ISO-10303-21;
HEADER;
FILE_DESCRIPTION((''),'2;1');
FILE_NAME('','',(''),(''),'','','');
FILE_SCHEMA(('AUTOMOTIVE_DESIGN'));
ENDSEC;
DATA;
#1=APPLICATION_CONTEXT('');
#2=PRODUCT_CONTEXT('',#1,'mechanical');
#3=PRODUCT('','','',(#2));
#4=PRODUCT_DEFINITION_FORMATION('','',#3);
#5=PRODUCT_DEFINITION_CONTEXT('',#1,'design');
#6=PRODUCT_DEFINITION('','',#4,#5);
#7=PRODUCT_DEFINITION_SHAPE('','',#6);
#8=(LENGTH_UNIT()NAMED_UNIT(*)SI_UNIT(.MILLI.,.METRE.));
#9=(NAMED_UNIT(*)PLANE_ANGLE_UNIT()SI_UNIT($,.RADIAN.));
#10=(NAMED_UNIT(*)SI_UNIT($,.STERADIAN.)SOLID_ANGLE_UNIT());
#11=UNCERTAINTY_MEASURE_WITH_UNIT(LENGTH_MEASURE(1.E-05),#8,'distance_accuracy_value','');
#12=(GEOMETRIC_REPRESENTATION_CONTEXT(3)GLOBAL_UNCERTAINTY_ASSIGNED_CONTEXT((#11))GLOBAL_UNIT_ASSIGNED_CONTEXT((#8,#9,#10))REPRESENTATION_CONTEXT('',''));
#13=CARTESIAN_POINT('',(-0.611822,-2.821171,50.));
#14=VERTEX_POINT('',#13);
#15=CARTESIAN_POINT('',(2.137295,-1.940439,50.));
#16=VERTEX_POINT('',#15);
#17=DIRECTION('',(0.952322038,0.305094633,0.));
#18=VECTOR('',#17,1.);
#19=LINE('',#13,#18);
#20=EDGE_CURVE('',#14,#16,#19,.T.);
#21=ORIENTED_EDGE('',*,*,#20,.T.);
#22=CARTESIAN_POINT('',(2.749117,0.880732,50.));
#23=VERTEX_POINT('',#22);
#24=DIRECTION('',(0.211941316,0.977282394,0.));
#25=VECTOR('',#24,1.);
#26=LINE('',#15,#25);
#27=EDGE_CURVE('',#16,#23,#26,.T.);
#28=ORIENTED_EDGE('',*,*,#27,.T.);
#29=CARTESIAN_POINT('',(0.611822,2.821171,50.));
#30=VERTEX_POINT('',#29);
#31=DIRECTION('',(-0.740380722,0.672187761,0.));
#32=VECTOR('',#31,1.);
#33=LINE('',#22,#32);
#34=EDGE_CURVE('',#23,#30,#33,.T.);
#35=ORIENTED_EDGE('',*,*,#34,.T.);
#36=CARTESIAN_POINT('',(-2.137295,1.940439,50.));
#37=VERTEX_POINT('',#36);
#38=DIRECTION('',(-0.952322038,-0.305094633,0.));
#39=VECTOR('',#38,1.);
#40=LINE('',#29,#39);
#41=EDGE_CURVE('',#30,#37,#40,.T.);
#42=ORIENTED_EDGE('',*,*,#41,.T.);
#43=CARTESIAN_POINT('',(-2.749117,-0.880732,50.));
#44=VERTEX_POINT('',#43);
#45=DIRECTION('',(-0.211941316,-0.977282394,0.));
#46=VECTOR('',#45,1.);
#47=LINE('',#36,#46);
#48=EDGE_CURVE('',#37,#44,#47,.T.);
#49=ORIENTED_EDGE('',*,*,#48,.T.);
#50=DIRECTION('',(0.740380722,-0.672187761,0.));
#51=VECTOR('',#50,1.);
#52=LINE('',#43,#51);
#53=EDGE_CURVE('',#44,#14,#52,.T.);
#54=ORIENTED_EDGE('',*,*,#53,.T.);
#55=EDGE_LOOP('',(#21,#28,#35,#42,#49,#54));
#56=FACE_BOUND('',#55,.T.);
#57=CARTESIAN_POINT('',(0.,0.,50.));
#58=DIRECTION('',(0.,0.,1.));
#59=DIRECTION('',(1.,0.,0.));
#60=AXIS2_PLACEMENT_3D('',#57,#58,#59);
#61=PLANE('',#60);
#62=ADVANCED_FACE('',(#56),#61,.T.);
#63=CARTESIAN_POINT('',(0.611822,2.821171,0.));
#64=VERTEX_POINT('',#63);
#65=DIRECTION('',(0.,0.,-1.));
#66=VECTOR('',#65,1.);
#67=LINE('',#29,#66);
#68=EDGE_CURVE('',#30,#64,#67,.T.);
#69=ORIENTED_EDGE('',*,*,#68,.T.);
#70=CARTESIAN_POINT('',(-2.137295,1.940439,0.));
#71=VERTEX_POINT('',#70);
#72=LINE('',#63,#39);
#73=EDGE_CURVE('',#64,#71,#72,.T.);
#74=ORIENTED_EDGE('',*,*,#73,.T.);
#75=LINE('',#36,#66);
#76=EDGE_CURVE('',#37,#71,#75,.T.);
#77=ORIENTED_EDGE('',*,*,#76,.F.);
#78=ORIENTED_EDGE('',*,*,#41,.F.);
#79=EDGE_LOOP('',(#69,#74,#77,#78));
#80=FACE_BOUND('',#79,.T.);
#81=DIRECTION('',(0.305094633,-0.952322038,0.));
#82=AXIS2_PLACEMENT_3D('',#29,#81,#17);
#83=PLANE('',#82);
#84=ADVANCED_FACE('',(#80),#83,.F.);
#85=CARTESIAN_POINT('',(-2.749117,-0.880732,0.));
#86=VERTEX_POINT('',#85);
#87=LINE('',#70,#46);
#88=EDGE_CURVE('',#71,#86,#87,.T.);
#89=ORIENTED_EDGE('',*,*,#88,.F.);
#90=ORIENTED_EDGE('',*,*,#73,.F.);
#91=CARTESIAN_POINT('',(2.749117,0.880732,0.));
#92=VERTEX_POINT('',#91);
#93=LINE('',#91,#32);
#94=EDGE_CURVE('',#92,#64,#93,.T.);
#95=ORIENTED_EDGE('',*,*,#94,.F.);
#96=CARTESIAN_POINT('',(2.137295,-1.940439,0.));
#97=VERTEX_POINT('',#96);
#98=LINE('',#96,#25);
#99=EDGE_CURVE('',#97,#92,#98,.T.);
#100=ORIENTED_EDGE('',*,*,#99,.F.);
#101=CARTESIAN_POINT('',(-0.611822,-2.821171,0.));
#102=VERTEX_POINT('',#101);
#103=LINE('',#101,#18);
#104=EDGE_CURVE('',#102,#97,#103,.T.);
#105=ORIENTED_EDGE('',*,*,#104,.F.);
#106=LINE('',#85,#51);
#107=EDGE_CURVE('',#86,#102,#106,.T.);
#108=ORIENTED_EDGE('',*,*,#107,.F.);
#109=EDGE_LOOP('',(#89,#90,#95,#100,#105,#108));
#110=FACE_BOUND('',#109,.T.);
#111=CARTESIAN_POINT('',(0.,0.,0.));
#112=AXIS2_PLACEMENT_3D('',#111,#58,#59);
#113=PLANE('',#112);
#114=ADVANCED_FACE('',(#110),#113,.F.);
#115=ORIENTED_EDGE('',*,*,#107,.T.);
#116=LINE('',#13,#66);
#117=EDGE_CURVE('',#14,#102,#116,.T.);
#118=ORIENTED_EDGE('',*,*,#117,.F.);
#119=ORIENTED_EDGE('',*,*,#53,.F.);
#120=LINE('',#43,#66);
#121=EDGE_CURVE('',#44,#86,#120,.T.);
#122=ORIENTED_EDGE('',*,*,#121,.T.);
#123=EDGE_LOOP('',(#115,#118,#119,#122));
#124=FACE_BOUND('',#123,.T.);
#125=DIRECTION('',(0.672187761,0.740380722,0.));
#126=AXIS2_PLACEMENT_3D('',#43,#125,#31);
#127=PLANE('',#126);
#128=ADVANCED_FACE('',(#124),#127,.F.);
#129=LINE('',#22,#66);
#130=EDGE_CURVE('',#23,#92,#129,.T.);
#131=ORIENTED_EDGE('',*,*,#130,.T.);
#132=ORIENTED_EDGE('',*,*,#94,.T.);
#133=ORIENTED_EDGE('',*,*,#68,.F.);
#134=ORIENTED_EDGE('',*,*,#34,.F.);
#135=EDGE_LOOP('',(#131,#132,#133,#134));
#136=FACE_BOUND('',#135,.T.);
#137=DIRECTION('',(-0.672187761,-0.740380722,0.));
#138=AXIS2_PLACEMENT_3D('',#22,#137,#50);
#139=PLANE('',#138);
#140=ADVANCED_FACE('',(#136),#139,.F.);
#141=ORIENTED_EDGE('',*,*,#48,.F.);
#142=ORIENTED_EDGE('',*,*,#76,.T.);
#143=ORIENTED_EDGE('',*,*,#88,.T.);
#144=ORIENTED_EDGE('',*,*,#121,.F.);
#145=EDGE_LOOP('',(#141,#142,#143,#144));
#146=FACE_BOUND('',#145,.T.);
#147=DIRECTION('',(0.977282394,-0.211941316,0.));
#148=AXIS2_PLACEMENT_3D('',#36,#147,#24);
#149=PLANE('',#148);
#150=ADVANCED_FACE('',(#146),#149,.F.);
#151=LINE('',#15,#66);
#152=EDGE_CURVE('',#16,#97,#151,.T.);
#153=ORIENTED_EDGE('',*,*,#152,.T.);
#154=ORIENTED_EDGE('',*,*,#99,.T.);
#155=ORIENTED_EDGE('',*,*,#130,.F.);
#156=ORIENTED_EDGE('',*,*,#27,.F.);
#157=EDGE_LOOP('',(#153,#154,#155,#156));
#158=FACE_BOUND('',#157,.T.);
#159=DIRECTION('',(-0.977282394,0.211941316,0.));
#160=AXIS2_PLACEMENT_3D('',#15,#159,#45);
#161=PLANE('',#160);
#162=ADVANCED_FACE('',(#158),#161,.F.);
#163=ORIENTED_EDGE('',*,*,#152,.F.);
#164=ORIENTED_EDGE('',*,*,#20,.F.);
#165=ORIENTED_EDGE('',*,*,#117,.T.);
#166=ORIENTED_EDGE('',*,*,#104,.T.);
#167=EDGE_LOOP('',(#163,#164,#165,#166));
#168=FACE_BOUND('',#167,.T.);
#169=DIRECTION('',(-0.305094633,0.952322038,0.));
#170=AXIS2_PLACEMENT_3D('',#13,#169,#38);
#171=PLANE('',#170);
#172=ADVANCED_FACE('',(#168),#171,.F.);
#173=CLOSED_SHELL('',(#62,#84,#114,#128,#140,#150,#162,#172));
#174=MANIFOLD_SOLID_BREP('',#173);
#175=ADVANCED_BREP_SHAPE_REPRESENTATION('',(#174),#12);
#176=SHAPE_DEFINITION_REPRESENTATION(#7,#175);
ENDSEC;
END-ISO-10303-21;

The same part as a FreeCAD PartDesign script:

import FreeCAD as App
import Part
import Sketcher
from FreeCAD import Vector


def add_polygon(sketch, points):
    """Adds a closed chain of lines whose ends are joined by coincident constraints."""
    first, n = sketch.GeometryCount, len(points)
    for a, b in zip(points, points[1:] + points[:1]):
        sketch.addGeometry(Part.LineSegment(App.Vector(*a, 0), App.Vector(*b, 0)), False)
    for i in range(n):
        sketch.addConstraint(Sketcher.Constraint("Coincident", first + i, 2, first + (i + 1) % n, 1))

doc = App.newDocument("Part")
params = doc.addObject("Spreadsheet::Sheet", "Params")
for row, (alias, value) in enumerate([
    ("pad1_length", "50 mm"),
], start=1):
    params.set(f"A{row}", alias)
    params.set(f"B{row}", "=" + value)
    params.setAlias(f"B{row}", alias)

body = doc.addObject("PartDesign::Body", "Body")

sketch1 = doc.addObject("Sketcher::SketchObject", "Sketch")
body.addObject(sketch1)
sketch1.AttachmentSupport = (doc.XY_Plane, [""])
sketch1.MapMode = "FlatFace"
add_polygon(sketch1, [(2.1, -1.9), (2.7, 0.9), (0.6, 2.8), (-2.1, 1.9), (-2.7, -0.9), (-0.6, -2.8)])
sketch1.addConstraint(Sketcher.Constraint("Symmetric", 0, 2, 3, 2, -1, 1))
sketch1.addConstraint(Sketcher.Constraint("Symmetric", 1, 2, 4, 2, -1, 1))
sketch1.addConstraint(Sketcher.Constraint("Symmetric", 2, 2, 5, 2, -1, 1))
sketch1.addConstraint(Sketcher.Constraint("Equal", 0, 1))
sketch1.addConstraint(Sketcher.Constraint("Equal", 1, 2))
sketch1.addConstraint(Sketcher.Constraint("Distance", 0, 2.886751))
sketch1.addConstraint(Sketcher.Constraint("DistanceX", -1, 1, 1, 2, 0.611822))
sketch1.addConstraint(Sketcher.Constraint("DistanceY", -1, 1, 1, 2, 2.821171))
sketch1.addConstraint(Sketcher.Constraint("DistanceY", -1, 1, 2, 2, 1.940439))
pad1 = doc.addObject("PartDesign::Pad", "Pad")
body.addObject(pad1)
pad1.Profile = sketch1
pad1.setExpression("Length", "Params.pad1_length")

doc.recompute()
